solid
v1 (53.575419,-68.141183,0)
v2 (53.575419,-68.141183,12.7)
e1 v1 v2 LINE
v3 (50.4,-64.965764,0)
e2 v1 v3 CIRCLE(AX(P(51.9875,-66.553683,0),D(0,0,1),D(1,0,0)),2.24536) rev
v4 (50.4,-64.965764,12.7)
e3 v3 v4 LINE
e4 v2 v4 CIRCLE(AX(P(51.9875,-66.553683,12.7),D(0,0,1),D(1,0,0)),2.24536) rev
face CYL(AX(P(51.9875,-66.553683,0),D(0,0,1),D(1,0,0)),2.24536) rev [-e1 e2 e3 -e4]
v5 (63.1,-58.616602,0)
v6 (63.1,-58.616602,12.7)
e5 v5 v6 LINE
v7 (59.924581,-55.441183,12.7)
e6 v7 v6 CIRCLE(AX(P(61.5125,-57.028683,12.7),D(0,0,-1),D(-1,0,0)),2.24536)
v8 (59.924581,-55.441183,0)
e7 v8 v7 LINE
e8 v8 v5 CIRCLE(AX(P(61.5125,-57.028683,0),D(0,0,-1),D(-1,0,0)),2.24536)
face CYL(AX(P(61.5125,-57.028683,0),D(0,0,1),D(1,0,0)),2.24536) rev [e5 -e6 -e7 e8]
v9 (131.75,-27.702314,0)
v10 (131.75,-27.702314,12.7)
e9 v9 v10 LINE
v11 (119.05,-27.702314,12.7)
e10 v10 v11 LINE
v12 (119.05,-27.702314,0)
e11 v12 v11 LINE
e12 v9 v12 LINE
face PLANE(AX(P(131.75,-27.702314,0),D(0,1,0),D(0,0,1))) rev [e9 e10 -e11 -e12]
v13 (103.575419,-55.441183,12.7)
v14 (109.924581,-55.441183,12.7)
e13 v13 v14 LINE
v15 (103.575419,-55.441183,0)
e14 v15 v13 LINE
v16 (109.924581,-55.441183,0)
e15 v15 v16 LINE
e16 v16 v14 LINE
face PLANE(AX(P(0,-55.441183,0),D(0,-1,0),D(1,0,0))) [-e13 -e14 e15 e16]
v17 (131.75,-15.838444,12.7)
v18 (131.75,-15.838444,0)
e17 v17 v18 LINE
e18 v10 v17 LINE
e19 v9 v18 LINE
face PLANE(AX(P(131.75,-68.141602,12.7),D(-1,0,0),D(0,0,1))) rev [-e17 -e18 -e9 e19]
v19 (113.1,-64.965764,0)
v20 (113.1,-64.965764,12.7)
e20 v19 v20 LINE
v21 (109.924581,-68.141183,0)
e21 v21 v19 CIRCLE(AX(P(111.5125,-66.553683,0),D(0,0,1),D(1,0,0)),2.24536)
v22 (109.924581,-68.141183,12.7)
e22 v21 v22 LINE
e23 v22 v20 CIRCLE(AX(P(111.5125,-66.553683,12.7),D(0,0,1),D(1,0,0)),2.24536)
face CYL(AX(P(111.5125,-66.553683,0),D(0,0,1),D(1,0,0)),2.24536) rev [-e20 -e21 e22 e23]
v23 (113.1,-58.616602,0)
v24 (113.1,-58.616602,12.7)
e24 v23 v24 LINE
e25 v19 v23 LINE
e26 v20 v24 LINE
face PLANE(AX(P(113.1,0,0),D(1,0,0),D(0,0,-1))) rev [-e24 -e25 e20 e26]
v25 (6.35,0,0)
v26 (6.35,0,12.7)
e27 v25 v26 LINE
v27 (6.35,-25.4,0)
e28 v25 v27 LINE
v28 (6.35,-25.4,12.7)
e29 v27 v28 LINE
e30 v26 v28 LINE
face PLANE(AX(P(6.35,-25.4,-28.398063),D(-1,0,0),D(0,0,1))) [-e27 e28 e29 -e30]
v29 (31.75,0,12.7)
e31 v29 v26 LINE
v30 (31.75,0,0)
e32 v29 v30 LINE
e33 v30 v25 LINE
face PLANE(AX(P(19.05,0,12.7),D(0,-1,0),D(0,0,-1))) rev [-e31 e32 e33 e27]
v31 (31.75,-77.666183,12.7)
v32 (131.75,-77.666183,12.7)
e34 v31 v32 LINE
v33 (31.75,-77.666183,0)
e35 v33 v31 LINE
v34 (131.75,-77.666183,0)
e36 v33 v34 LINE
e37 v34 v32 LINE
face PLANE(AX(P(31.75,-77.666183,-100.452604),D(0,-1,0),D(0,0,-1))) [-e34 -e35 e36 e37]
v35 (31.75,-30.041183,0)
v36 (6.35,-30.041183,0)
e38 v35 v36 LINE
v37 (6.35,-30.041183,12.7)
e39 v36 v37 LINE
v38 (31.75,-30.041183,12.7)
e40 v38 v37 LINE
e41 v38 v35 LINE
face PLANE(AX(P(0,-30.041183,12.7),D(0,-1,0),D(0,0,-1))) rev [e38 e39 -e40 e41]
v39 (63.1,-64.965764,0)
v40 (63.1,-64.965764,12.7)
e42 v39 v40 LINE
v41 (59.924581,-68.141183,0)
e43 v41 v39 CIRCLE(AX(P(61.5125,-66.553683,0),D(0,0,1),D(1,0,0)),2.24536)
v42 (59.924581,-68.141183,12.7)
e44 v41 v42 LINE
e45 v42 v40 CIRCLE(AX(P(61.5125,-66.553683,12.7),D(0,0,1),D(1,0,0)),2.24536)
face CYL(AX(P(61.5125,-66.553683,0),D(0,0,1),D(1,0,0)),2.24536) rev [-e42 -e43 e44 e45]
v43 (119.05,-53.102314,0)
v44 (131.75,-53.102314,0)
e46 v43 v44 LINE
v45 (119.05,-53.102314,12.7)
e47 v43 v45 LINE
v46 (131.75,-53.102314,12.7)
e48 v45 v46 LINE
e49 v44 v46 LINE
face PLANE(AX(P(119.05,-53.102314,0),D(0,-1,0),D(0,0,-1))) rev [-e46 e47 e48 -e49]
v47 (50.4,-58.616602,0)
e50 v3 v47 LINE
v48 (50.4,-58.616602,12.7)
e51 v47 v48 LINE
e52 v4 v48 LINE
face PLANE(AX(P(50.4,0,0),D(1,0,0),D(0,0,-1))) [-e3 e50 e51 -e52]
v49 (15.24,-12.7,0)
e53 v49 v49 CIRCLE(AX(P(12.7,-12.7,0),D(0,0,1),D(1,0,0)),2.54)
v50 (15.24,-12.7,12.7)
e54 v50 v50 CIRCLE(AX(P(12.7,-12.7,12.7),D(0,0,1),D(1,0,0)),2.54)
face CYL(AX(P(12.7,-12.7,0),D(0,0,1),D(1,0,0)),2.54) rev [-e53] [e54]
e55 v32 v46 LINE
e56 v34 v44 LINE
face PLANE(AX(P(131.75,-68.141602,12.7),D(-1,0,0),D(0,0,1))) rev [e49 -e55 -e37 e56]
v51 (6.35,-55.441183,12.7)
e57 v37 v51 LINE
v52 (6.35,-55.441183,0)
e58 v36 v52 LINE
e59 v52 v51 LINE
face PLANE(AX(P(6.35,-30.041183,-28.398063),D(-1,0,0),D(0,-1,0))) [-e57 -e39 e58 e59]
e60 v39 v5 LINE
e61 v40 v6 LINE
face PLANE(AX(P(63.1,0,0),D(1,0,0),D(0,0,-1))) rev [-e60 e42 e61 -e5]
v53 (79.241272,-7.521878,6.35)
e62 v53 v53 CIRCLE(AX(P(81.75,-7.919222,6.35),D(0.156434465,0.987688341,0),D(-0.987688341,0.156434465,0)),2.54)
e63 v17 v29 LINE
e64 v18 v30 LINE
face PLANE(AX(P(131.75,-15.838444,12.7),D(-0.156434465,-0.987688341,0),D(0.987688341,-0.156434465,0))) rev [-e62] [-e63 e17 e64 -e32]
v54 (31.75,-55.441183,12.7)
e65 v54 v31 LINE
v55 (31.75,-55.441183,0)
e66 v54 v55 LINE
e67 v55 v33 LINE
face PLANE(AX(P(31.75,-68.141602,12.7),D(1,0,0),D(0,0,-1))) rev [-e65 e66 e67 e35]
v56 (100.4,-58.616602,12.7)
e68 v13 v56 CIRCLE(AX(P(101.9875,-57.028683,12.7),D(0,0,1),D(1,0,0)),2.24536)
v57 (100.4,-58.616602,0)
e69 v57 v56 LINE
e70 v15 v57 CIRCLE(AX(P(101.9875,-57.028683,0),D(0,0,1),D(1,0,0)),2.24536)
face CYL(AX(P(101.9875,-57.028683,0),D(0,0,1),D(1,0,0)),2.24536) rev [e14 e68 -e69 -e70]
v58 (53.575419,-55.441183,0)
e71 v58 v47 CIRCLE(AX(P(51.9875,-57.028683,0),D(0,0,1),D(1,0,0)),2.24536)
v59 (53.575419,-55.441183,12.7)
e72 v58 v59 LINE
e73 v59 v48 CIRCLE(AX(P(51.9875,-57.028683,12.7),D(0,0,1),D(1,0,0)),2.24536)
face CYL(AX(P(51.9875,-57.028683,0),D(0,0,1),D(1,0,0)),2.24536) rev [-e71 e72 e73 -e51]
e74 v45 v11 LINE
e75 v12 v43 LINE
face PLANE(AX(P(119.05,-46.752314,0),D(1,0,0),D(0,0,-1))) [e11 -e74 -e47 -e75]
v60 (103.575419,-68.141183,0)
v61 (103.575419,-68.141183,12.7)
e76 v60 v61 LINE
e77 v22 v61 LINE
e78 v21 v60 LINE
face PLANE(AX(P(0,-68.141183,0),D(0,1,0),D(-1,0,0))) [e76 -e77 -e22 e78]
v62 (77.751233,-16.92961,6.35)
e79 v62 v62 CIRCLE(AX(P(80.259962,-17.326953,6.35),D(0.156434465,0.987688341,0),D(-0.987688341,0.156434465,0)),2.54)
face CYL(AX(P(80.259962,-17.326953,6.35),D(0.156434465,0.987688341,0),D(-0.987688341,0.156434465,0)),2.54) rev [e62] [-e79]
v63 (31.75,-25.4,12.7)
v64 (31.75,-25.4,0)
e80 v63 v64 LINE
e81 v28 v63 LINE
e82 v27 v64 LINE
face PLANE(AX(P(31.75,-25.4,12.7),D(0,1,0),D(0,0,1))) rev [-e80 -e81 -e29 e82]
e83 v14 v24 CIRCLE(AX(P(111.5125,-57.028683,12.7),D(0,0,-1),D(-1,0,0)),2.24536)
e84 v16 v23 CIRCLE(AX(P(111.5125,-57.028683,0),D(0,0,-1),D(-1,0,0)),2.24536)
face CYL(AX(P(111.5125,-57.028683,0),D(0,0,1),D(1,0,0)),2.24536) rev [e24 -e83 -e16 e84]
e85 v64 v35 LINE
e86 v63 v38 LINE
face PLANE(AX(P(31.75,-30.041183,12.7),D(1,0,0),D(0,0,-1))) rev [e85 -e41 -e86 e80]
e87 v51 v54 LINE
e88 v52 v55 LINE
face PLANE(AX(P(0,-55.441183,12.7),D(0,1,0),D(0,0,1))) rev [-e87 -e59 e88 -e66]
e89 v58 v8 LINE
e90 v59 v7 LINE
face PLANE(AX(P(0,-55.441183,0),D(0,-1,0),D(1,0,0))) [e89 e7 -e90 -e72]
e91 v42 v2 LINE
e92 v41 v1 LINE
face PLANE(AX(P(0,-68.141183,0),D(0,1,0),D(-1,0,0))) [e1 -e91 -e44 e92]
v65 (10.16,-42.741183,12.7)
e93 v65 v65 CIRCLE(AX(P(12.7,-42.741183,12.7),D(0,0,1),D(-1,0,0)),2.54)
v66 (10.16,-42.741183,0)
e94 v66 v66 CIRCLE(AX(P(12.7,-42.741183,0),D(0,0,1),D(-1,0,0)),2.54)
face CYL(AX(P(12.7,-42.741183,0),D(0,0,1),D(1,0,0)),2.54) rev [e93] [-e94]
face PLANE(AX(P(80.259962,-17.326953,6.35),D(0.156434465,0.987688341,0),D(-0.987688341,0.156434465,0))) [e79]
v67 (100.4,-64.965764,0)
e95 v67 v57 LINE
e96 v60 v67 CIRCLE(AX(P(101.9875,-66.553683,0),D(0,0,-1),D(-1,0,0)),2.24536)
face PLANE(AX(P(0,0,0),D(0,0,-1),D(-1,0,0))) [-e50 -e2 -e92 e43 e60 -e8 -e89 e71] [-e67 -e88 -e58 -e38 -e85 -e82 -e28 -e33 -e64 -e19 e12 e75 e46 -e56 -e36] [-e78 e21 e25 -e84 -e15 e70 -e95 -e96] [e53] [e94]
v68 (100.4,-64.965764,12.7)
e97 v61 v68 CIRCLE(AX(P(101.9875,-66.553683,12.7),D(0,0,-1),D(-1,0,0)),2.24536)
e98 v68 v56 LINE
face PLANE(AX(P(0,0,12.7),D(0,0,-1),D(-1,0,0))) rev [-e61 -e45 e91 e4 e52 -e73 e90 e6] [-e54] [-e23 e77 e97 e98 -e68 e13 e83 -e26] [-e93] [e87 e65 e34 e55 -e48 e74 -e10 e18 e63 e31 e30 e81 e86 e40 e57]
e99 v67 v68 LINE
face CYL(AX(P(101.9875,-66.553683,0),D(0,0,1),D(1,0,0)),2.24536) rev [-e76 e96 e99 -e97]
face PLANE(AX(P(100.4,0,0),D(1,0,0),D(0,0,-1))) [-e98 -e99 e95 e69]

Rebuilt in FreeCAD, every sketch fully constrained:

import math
import FreeCAD as App
import Part
import Sketcher
from FreeCAD import Vector
Q = App.Units.Quantity

doc = App.newDocument("Part")
body = doc.addObject("PartDesign::Body", "Body")

# Sketch on XY plane
sketch1 = body.newObject("Sketcher::SketchObject", "Sketch")
sketch1.AttachmentSupport = (doc.getObject("XY_Plane"), [""])
sketch1.MapMode = "FlatFace"
sketch1.addGeometry(Part.LineSegment(Vector(31.8, -55.4, 0), Vector(31.8, -68.1, 0)), False)
sketch1.addGeometry(Part.LineSegment(Vector(31.8, -68.1, 0), Vector(131.8, -68.1, 0)), False)
sketch1.addGeometry(Part.LineSegment(Vector(131.8, -68.1, 0), Vector(131.8, -15.8, 0)), False)
sketch1.addGeometry(Part.LineSegment(Vector(131.8, -15.8, 0), Vector(31.8, 0, 0)), False)
sketch1.addGeometry(Part.LineSegment(Vector(31.8, 0, 0), Vector(0, 0, 0)), False)
sketch1.addGeometry(Part.LineSegment(Vector(0, 0, 0), Vector(0, -25.4, 0)), False)
sketch1.addGeometry(Part.LineSegment(Vector(0, -25.4, 0), Vector(31.8, -25.4, 0)), False)
sketch1.addGeometry(Part.LineSegment(Vector(31.8, -25.4, 0), Vector(31.8, -30, 0)), False)
sketch1.addGeometry(Part.LineSegment(Vector(31.8, -30, 0), Vector(0, -30, 0)), False)
sketch1.addGeometry(Part.LineSegment(Vector(0, -30, 0), Vector(0, -55.4, 0)), False)
sketch1.addGeometry(Part.LineSegment(Vector(0, -55.4, 0), Vector(31.8, -55.4, 0)), False)
sketch1.addConstraint(Sketcher.Constraint("Coincident", 0, 2, 1, 1))
sketch1.addConstraint(Sketcher.Constraint("Coincident", 1, 2, 2, 1))
sketch1.addConstraint(Sketcher.Constraint("Coincident", 2, 2, 3, 1))
sketch1.addConstraint(Sketcher.Constraint("Coincident", 3, 2, 4, 1))
sketch1.addConstraint(Sketcher.Constraint("Coincident", 4, 2, 5, 1))
sketch1.addConstraint(Sketcher.Constraint("Coincident", 5, 2, 6, 1))
sketch1.addConstraint(Sketcher.Constraint("Coincident", 6, 2, 7, 1))
sketch1.addConstraint(Sketcher.Constraint("Coincident", 7, 2, 8, 1))
sketch1.addConstraint(Sketcher.Constraint("Coincident", 8, 2, 9, 1))
sketch1.addConstraint(Sketcher.Constraint("Coincident", 9, 2, 10, 1))
sketch1.addConstraint(Sketcher.Constraint("Coincident", 10, 2, 0, 1))
sketch1.addConstraint(Sketcher.Constraint("Vertical", 0))
sketch1.addConstraint(Sketcher.Constraint("Horizontal", 1))
sketch1.addConstraint(Sketcher.Constraint("Vertical", 2))
sketch1.addConstraint(Sketcher.Constraint("Horizontal", 4))
sketch1.addConstraint(Sketcher.Constraint("Vertical", 5))
sketch1.addConstraint(Sketcher.Constraint("Horizontal", 6))
sketch1.addConstraint(Sketcher.Constraint("Vertical", 7))
sketch1.addConstraint(Sketcher.Constraint("Horizontal", 8))
sketch1.addConstraint(Sketcher.Constraint("Vertical", 9))
sketch1.addConstraint(Sketcher.Constraint("Horizontal", 10))
sketch1.addConstraint(Sketcher.Constraint("Coincident", 4, 2, -1, 1))
sketch1.addConstraint(Sketcher.Constraint("PointOnObject", 8, 2, -2))
sketch1.addConstraint(Sketcher.Constraint("Vertical", 0, 2, 3, 2))
sketch1.addConstraint(Sketcher.Constraint("Vertical", 3, 2, 6, 2))
sketch1.addConstraint(Sketcher.Constraint("Equal", 5, 9))
sketch1.addConstraint(Sketcher.Constraint("DistanceY", 5, 2, 5, 1, Q("1 in")))
sketch1.addConstraint(Sketcher.Constraint("Angle", 3, Q("171 deg")))
sketch1.addConstraint(Sketcher.Constraint("DistanceX", 4, 2, 4, 1, Q("1.25 in")))
sketch1.addConstraint(Sketcher.Constraint("DistanceX", 1, 1, 1, 2, Q("100 mm")))
sketch1.addConstraint(Sketcher.Constraint("DistanceY", 0, 2, 0, 1, Q("12.700419 mm")))
sketch1.addConstraint(Sketcher.Constraint("DistanceY", 0, 2, -1, 1, Q("68.141602 mm")))
pad1 = body.newObject("PartDesign::Pad", "Pad")
pad1.Profile = sketch1
pad1.Length = Q("0.5 in")

# Sketch on XY plane
sketch2 = body.newObject("Sketcher::SketchObject", "Sketch001")
sketch2.AttachmentSupport = (doc.getObject("XY_Plane"), [""])
sketch2.MapMode = "FlatFace"
sketch2.AttachmentOffset = App.Placement(Vector(0, 0, 0.5 * 25.4), App.Rotation())
sketch2.addGeometry(Part.Circle(Vector(25.4, -12.7, 0), Vector(0, 0, 1), 2.5), False)
sketch2.addGeometry(Part.Circle(Vector(25.4, -42.7, 0), Vector(0, 0, 1), 2.5), False)
sketch2.addGeometry(Part.LineSegment(Vector(0, 0, 0), Vector(0, -55.4, 0)), False)
sketch2.addGeometry(Part.LineSegment(Vector(0, -55.4, 0), Vector(19.1, -55.4, 0)), False)
sketch2.addGeometry(Part.LineSegment(Vector(19.1, -55.4, 0), Vector(19.1, 0, 0)), False)
sketch2.addGeometry(Part.LineSegment(Vector(19.1, 0, 0), Vector(0, 0, 0)), False)
sketch2.addConstraint(Sketcher.Constraint("Coincident", 2, 2, 3, 1))
sketch2.addConstraint(Sketcher.Constraint("Coincident", 3, 2, 4, 1))
sketch2.addConstraint(Sketcher.Constraint("Coincident", 4, 2, 5, 1))
sketch2.addConstraint(Sketcher.Constraint("Coincident", 5, 2, 2, 1))
sketch2.addConstraint(Sketcher.Constraint("Vertical", 2))
sketch2.addConstraint(Sketcher.Constraint("Horizontal", 3))
sketch2.addConstraint(Sketcher.Constraint("Vertical", 4))
sketch2.addConstraint(Sketcher.Constraint("Horizontal", 5))
sketch2.addConstraint(Sketcher.Constraint("Coincident", 5, 2, -1, 1))
sketch2.addConstraint(Sketcher.Constraint("Equal", 0, 1))
sketch2.addConstraint(Sketcher.Constraint("Vertical", 0, 3, 1, 3))
sketch2.addConstraint(Sketcher.Constraint("Diameter", 0, Q("0.2 in")))
sketch2.addConstraint(Sketcher.Constraint("DistanceX", -1, 1, 0, 3, Q("1 in")))
sketch2.addConstraint(Sketcher.Constraint("DistanceX", 3, 1, 3, 2, Q("0.75 in")))
sketch2.addConstraint(Sketcher.Constraint("DistanceY", 0, 3, -1, 1, Q("0.5 in")))
sketch2.addConstraint(Sketcher.Constraint("DistanceY", 2, 2, 1, 3, Q("0.5 in")))
sketch2.addConstraint(Sketcher.Constraint("DistanceY", 2, 2, 2, 1, Q("55.441183 mm")))
pocket1 = body.newObject("PartDesign::Pocket", "Pocket")
pocket1.Profile = sketch2
pocket1.Type = "ThroughAll"

# Sketch on XY plane
sketch3 = body.newObject("Sketcher::SketchObject", "Sketch002")
sketch3.AttachmentSupport = (doc.getObject("XY_Plane"), [""])
sketch3.MapMode = "FlatFace"
sketch3.AttachmentOffset = App.Placement(Vector(0, 0, 0.5 * 25.4), App.Rotation())
sketch3.addGeometry(Part.LineSegment(Vector(32, -68, 0), Vector(32, -81, 0)), False)
sketch3.addGeometry(Part.LineSegment(Vector(32, -81, 0), Vector(132, -81, 0)), False)
sketch3.addGeometry(Part.LineSegment(Vector(132, -81, 0), Vector(132, -68, 0)), False)
sketch3.addGeometry(Part.LineSegment(Vector(132, -68, 0), Vector(32, -68, 0)), False)
sketch3.addConstraint(Sketcher.Constraint("Coincident", 0, 2, 1, 1))
sketch3.addConstraint(Sketcher.Constraint("Coincident", 1, 2, 2, 1))
sketch3.addConstraint(Sketcher.Constraint("Coincident", 2, 2, 3, 1))
sketch3.addConstraint(Sketcher.Constraint("Coincident", 3, 2, 0, 1))
sketch3.addConstraint(Sketcher.Constraint("Vertical", 0))
sketch3.addConstraint(Sketcher.Constraint("Horizontal", 1))
sketch3.addConstraint(Sketcher.Constraint("Vertical", 2))
sketch3.addConstraint(Sketcher.Constraint("Horizontal", 3))
sketch3.addConstraint(Sketcher.Constraint("DistanceX", -1, 1, 0, 2, Q("1.25 in")))
sketch3.addConstraint(Sketcher.Constraint("DistanceX", 1, 1, 1, 2, Q("100 mm")))
sketch3.addConstraint(Sketcher.Constraint("DistanceY", 0, 2, 0, 1, Q("12.958546 mm")))
sketch3.addConstraint(Sketcher.Constraint("DistanceY", 0, 2, -1, 1, Q("81.099729 mm")))
pocket2 = body.newObject("PartDesign::Pocket", "Pocket001")
pocket2.Profile = sketch3
pocket2.Type = "ThroughAll"

# Sketch on XY plane
sketch4 = body.newObject("Sketcher::SketchObject", "Sketch003")
sketch4.AttachmentSupport = (doc.getObject("XY_Plane"), [""])
sketch4.MapMode = "FlatFace"
sketch4.AttachmentOffset = App.Placement(Vector(0, 0, 0.5 * 25.4), App.Rotation())
sketch4.addGeometry(Part.LineSegment(Vector(32, -68, 0), Vector(32, -78, 0)), False)
sketch4.addGeometry(Part.LineSegment(Vector(32, -78, 0), Vector(132, -78, 0)), False)
sketch4.addGeometry(Part.LineSegment(Vector(132, -78, 0), Vector(132, -68, 0)), False)
sketch4.addGeometry(Part.LineSegment(Vector(132, -68, 0), Vector(32, -68, 0)), False)
sketch4.addConstraint(Sketcher.Constraint("Coincident", 0, 2, 1, 1))
sketch4.addConstraint(Sketcher.Constraint("Coincident", 1, 2, 2, 1))
sketch4.addConstraint(Sketcher.Constraint("Coincident", 2, 2, 3, 1))
sketch4.addConstraint(Sketcher.Constraint("Coincident", 3, 2, 0, 1))
sketch4.addConstraint(Sketcher.Constraint("Vertical", 0))
sketch4.addConstraint(Sketcher.Constraint("Horizontal", 1))
sketch4.addConstraint(Sketcher.Constraint("Vertical", 2))
sketch4.addConstraint(Sketcher.Constraint("Horizontal", 3))
sketch4.addConstraint(Sketcher.Constraint("DistanceY", 0, 2, 0, 1, Q("0.375 in")))
sketch4.addConstraint(Sketcher.Constraint("DistanceX", -1, 1, 0, 2, Q("1.25 in")))
sketch4.addConstraint(Sketcher.Constraint("DistanceX", 1, 1, 1, 2, Q("100 mm")))
sketch4.addConstraint(Sketcher.Constraint("DistanceY", 0, 2, -1, 1, Q("77.666183 mm")))
pad2 = body.newObject("PartDesign::Pad", "Pad001")
pad2.Profile = sketch4
pad2.Length = Q("0.5 in")
pad2.Reversed = True

# Sketch on XY plane
sketch5 = body.newObject("Sketcher::SketchObject", "Sketch004")
sketch5.AttachmentSupport = (doc.getObject("XY_Plane"), [""])
sketch5.MapMode = "FlatFace"
sketch5.AttachmentOffset = App.Placement(Vector(0, 0, 0.5 * 25.4), App.Rotation())
sketch5.addGeometry(Part.ArcOfCircle(Part.Circle(Vector(52, -57, 0), Vector(0, 0, 1), 2.2), math.radians(45), math.radians(225)), False)
sketch5.addGeometry(Part.LineSegment(Vector(50.4, -58.6, 0), Vector(50.4, -65, 0)), False)
sketch5.addGeometry(Part.ArcOfCircle(Part.Circle(Vector(52, -66.6, 0), Vector(0, 0, 1), 2.2), math.radians(135), math.radians(315)), False)
sketch5.addGeometry(Part.LineSegment(Vector(53.6, -68.1, 0), Vector(59.9, -68.1, 0)), False)
sketch5.addGeometry(Part.ArcOfCircle(Part.Circle(Vector(61.5, -66.6, 0), Vector(0, 0, 1), 2.2), math.radians(-135), math.radians(45)), False)
sketch5.addGeometry(Part.LineSegment(Vector(63.1, -65, 0), Vector(63.1, -58.6, 0)), False)
sketch5.addGeometry(Part.ArcOfCircle(Part.Circle(Vector(61.5, -57, 0), Vector(0, 0, 1), 2.2), math.radians(-45), math.radians(135)), False)
sketch5.addGeometry(Part.LineSegment(Vector(59.9, -55.4, 0), Vector(53.6, -55.4, 0)), False)
sketch5.addGeometry(Part.ArcOfCircle(Part.Circle(Vector(111.5, -57, 0), Vector(0, 0, 1), 2.2), math.radians(-45), math.radians(135)), False)
sketch5.addGeometry(Part.LineSegment(Vector(109.9, -55.4, 0), Vector(103.6, -55.4, 0)), False)
sketch5.addGeometry(Part.ArcOfCircle(Part.Circle(Vector(102, -57, 0), Vector(0, 0, 1), 2.2), math.radians(45), math.radians(225)), False)
sketch5.addGeometry(Part.LineSegment(Vector(100.4, -58.6, 0), Vector(100.4, -65, 0)), False)
sketch5.addGeometry(Part.ArcOfCircle(Part.Circle(Vector(102, -66.6, 0), Vector(0, 0, 1), 2.2), math.radians(135), math.radians(315)), False)
sketch5.addGeometry(Part.LineSegment(Vector(103.6, -68.1, 0), Vector(109.9, -68.1, 0)), False)
sketch5.addGeometry(Part.ArcOfCircle(Part.Circle(Vector(111.5, -66.6, 0), Vector(0, 0, 1), 2.2), math.radians(-135), math.radians(45)), False)
sketch5.addGeometry(Part.LineSegment(Vector(113.1, -65, 0), Vector(113.1, -58.6, 0)), False)
sketch5.addConstraint(Sketcher.Constraint("Coincident", 0, 2, 1, 1))
sketch5.addConstraint(Sketcher.Constraint("Coincident", 1, 2, 2, 1))
sketch5.addConstraint(Sketcher.Constraint("Coincident", 2, 2, 3, 1))
sketch5.addConstraint(Sketcher.Constraint("Coincident", 3, 2, 4, 1))
sketch5.addConstraint(Sketcher.Constraint("Coincident", 4, 2, 5, 1))
sketch5.addConstraint(Sketcher.Constraint("Coincident", 5, 2, 6, 1))
sketch5.addConstraint(Sketcher.Constraint("Coincident", 6, 2, 7, 1))
sketch5.addConstraint(Sketcher.Constraint("Coincident", 7, 2, 0, 1))
sketch5.addConstraint(Sketcher.Constraint("Coincident", 8, 2, 9, 1))
sketch5.addConstraint(Sketcher.Constraint("Coincident", 9, 2, 10, 1))
sketch5.addConstraint(Sketcher.Constraint("Coincident", 10, 2, 11, 1))
sketch5.addConstraint(Sketcher.Constraint("Coincident", 11, 2, 12, 1))
sketch5.addConstraint(Sketcher.Constraint("Coincident", 12, 2, 13, 1))
sketch5.addConstraint(Sketcher.Constraint("Coincident", 13, 2, 14, 1))
sketch5.addConstraint(Sketcher.Constraint("Coincident", 14, 2, 15, 1))
sketch5.addConstraint(Sketcher.Constraint("Coincident", 15, 2, 8, 1))
sketch5.addConstraint(Sketcher.Constraint("Vertical", 1))
sketch5.addConstraint(Sketcher.Constraint("Horizontal", 3))
sketch5.addConstraint(Sketcher.Constraint("Vertical", 5))
sketch5.addConstraint(Sketcher.Constraint("Horizontal", 7))
sketch5.addConstraint(Sketcher.Constraint("Horizontal", 9))
sketch5.addConstraint(Sketcher.Constraint("Vertical", 11))
sketch5.addConstraint(Sketcher.Constraint("Horizontal", 13))
sketch5.addConstraint(Sketcher.Constraint("Vertical", 15))
sketch5.addConstraint(Sketcher.Constraint("Equal", 0, 2))
sketch5.addConstraint(Sketcher.Constraint("Equal", 2, 4))
sketch5.addConstraint(Sketcher.Constraint("Equal", 4, 6))
sketch5.addConstraint(Sketcher.Constraint("Equal", 6, 8))
sketch5.addConstraint(Sketcher.Constraint("Equal", 8, 10))
sketch5.addConstraint(Sketcher.Constraint("Equal", 10, 12))
sketch5.addConstraint(Sketcher.Constraint("Equal", 12, 14))
sketch5.addConstraint(Sketcher.Constraint("Horizontal", 2, 3, 4, 3))
sketch5.addConstraint(Sketcher.Constraint("Horizontal", 0, 3, 6, 3))
sketch5.addConstraint(Sketcher.Constraint("Horizontal", 6, 3, 8, 3))
sketch5.addConstraint(Sketcher.Constraint("Horizontal", 8, 3, 10, 3))
sketch5.addConstraint(Sketcher.Constraint("Horizontal", 4, 3, 12, 3))
sketch5.addConstraint(Sketcher.Constraint("Horizontal", 12, 3, 14, 3))
sketch5.addConstraint(Sketcher.Constraint("Horizontal", 1, 2, 4, 2))
sketch5.addConstraint(Sketcher.Constraint("Horizontal", 0, 2, 5, 2))
sketch5.addConstraint(Sketcher.Constraint("Horizontal", 7, 2, 8, 2))
sketch5.addConstraint(Sketcher.Constraint("Horizontal", 5, 2, 10, 2))
sketch5.addConstraint(Sketcher.Constraint("Horizontal", 4, 2, 11, 2))
sketch5.addConstraint(Sketcher.Constraint("Horizontal", 3, 2, 12, 2))
sketch5.addConstraint(Sketcher.Constraint("Horizontal", 11, 2, 14, 2))
sketch5.addConstraint(Sketcher.Constraint("Horizontal", 10, 2, 15, 2))
sketch5.addConstraint(Sketcher.Constraint("Vertical", 0, 3, 2, 3))
sketch5.addConstraint(Sketcher.Constraint("Vertical", 3, 2, 6, 2))
sketch5.addConstraint(Sketcher.Constraint("Equal", 7, 9))
sketch5.addConstraint(Sketcher.Constraint("Equal", 13, 1))
sketch5.addConstraint(Sketcher.Constraint("Radius", 0, Q("0.0884 in")))
sketch5.addConstraint(Sketcher.Constraint("DistanceY", 2, 3, 0, 3, Q("0.375 in")))
sketch5.addConstraint(Sketcher.Constraint("DistanceX", 2, 3, 4, 3, Q("0.375 in")))
sketch5.addConstraint(Sketcher.Constraint("DistanceX", 0, 2, 0, 3, Q("0.0625 in")))
sketch5.addConstraint(Sketcher.Constraint("DistanceX", -1, 1, 0, 3, Q("51.9875 mm")))
sketch5.addConstraint(Sketcher.Constraint("DistanceX", -1, 1, 8, 3, Q("111.5125 mm")))
sketch5.addConstraint(Sketcher.Constraint("DistanceY", 0, 2, -1, 1, Q("58.616602 mm")))
pocket3 = body.newObject("PartDesign::Pocket", "Pocket002")
pocket3.Profile = sketch5
pocket3.Type = "ThroughAll"

# Sketch on XY plane
sketch6 = body.newObject("Sketcher::SketchObject", "Sketch005")
sketch6.AttachmentSupport = (doc.getObject("XY_Plane"), [""])
sketch6.MapMode = "FlatFace"
sketch6.AttachmentOffset = App.Placement(Vector(0, 0, 0.5 * 25.4), App.Rotation())
sketch6.addGeometry(Part.Circle(Vector(25.4, -12.7, 0), Vector(0, 0, 1), 4.1), False)
sketch6.addGeometry(Part.Circle(Vector(25.4, -42.7, 0), Vector(0, 0, 1), 6.1), False)
sketch6.addGeometry(Part.LineSegment(Vector(6.3, 0, 0), Vector(6.3, -25.4, 0)), False)
sketch6.addGeometry(Part.LineSegment(Vector(6.3, -25.4, 0), Vector(19.1, -25.4, 0)), False)
sketch6.addGeometry(Part.LineSegment(Vector(19.1, -25.4, 0), Vector(19.1, 0, 0)), False)
sketch6.addGeometry(Part.LineSegment(Vector(19.1, 0, 0), Vector(6.3, 0, 0)), False)
sketch6.addGeometry(Part.LineSegment(Vector(6.3, -30, 0), Vector(6.3, -55.4, 0)), False)
sketch6.addGeometry(Part.LineSegment(Vector(6.3, -55.4, 0), Vector(19.1, -55.4, 0)), False)
sketch6.addGeometry(Part.LineSegment(Vector(19.1, -55.4, 0), Vector(19.1, -30, 0)), False)
sketch6.addGeometry(Part.LineSegment(Vector(19.1, -30, 0), Vector(6.3, -30, 0)), False)
sketch6.addConstraint(Sketcher.Constraint("Coincident", 2, 2, 3, 1))
sketch6.addConstraint(Sketcher.Constraint("Coincident", 3, 2, 4, 1))
sketch6.addConstraint(Sketcher.Constraint("Coincident", 4, 2, 5, 1))
sketch6.addConstraint(Sketcher.Constraint("Coincident", 5, 2, 2, 1))
sketch6.addConstraint(Sketcher.Constraint("Coincident", 6, 2, 7, 1))
sketch6.addConstraint(Sketcher.Constraint("Coincident", 7, 2, 8, 1))
sketch6.addConstraint(Sketcher.Constraint("Coincident", 8, 2, 9, 1))
sketch6.addConstraint(Sketcher.Constraint("Coincident", 9, 2, 6, 1))
sketch6.addConstraint(Sketcher.Constraint("Vertical", 2))
sketch6.addConstraint(Sketcher.Constraint("Horizontal", 3))
sketch6.addConstraint(Sketcher.Constraint("Vertical", 4))
sketch6.addConstraint(Sketcher.Constraint("Horizontal", 5))
sketch6.addConstraint(Sketcher.Constraint("Vertical", 6))
sketch6.addConstraint(Sketcher.Constraint("Horizontal", 7))
sketch6.addConstraint(Sketcher.Constraint("Vertical", 8))
sketch6.addConstraint(Sketcher.Constraint("Horizontal", 9))
sketch6.addConstraint(Sketcher.Constraint("PointOnObject", 4, 2, -1))
sketch6.addConstraint(Sketcher.Constraint("Vertical", 0, 3, 1, 3))
sketch6.addConstraint(Sketcher.Constraint("Vertical", 5, 2, 6, 2))
sketch6.addConstraint(Sketcher.Constraint("Vertical", 4, 2, 7, 2))
sketch6.addConstraint(Sketcher.Constraint("Equal", 4, 6))
sketch6.addConstraint(Sketcher.Constraint("DistanceY", 2, 2, 2, 1, Q("1 in")))
sketch6.addConstraint(Sketcher.Constraint("DistanceX", 3, 1, 3, 2, Q("0.5 in")))
sketch6.addConstraint(Sketcher.Constraint("DistanceX", -1, 1, 0, 3, Q("1 in")))
sketch6.addConstraint(Sketcher.Constraint("DistanceY", 0, 3, -1, 1, Q("0.5 in")))
sketch6.addConstraint(Sketcher.Constraint("DistanceY", 6, 2, 1, 3, Q("0.5 in")))
sketch6.addConstraint(Sketcher.Constraint("DistanceX", -1, 1, 2, 2, Q("0.25 in")))
sketch6.addConstraint(Sketcher.Constraint("Diameter", 1, Q("12.10474 mm")))
sketch6.addConstraint(Sketcher.Constraint("Diameter", 0, Q("8.182507 mm")))
sketch6.addConstraint(Sketcher.Constraint("DistanceY", 1, 3, -1, 1, Q("42.741183 mm")))
pad3 = body.newObject("PartDesign::Pad", "Pad002")
pad3.Profile = sketch6
pad3.Length = Q("0.5 in")
pad3.Reversed = True

# Sketch on XY plane
sketch7 = body.newObject("Sketcher::SketchObject", "Sketch006")
sketch7.AttachmentSupport = (doc.getObject("XY_Plane"), [""])
sketch7.MapMode = "FlatFace"
sketch7.AttachmentOffset = App.Placement(Vector(0, 0, 0.5 * 25.4), App.Rotation())
sketch7.addGeometry(Part.Circle(Vector(12.7, -12.7, 0), Vector(0, 0, 1), 2.5), False)
sketch7.addGeometry(Part.Circle(Vector(12.7, -42.7, 0), Vector(0, 0, 1), 2.5), False)
sketch7.addConstraint(Sketcher.Constraint("Equal", 0, 1))
sketch7.addConstraint(Sketcher.Constraint("Vertical", 0, 3, 1, 3))
sketch7.addConstraint(Sketcher.Constraint("Diameter", 0, Q("0.2 in")))
sketch7.addConstraint(Sketcher.Constraint("DistanceX", -1, 1, 0, 3, Q("0.5 in")))
sketch7.addConstraint(Sketcher.Constraint("DistanceY", 0, 3, -1, 1, Q("0.5 in")))
sketch7.addConstraint(Sketcher.Constraint("DistanceY", 1, 3, -1, 1, Q("42.741183 mm")))
pocket4 = body.newObject("PartDesign::Pocket", "Pocket003")
pocket4.Profile = sketch7
pocket4.Type = "ThroughAll"

# Sketch on XY plane
sketch8 = body.newObject("Sketcher::SketchObject", "Sketch007")
sketch8.AttachmentSupport = (doc.getObject("XY_Plane"), [""])
sketch8.MapMode = "FlatFace"
sketch8.AttachmentOffset = App.Placement(Vector(0, 0, 0.5 * 25.4), App.Rotation())
sketch8.addGeometry(Part.LineSegment(Vector(132, -28, 0), Vector(119, -28, 0)), False)
sketch8.addGeometry(Part.LineSegment(Vector(119, -28, 0), Vector(119, -53, 0)), False)
sketch8.addGeometry(Part.LineSegment(Vector(119, -53, 0), Vector(132, -53, 0)), False)
sketch8.addGeometry(Part.LineSegment(Vector(132, -53, 0), Vector(132, -28, 0)), False)
sketch8.addConstraint(Sketcher.Constraint("Coincident", 0, 2, 1, 1))
sketch8.addConstraint(Sketcher.Constraint("Coincident", 1, 2, 2, 1))
sketch8.addConstraint(Sketcher.Constraint("Coincident", 2, 2, 3, 1))
sketch8.addConstraint(Sketcher.Constraint("Coincident", 3, 2, 0, 1))
sketch8.addConstraint(Sketcher.Constraint("Horizontal", 0))
sketch8.addConstraint(Sketcher.Constraint("Vertical", 1))
sketch8.addConstraint(Sketcher.Constraint("Horizontal", 2))
sketch8.addConstraint(Sketcher.Constraint("Vertical", 3))
sketch8.addConstraint(Sketcher.Constraint("DistanceY", 1, 2, 1, 1, Q("1 in")))
sketch8.addConstraint(Sketcher.Constraint("DistanceX", 0, 2, 0, 1, Q("0.5 in")))
sketch8.addConstraint(Sketcher.Constraint("DistanceX", -1, 1, 0, 2, Q("119.05 mm")))
sketch8.addConstraint(Sketcher.Constraint("DistanceY", 0, 2, -1, 1, Q("27.702314 mm")))
pocket5 = body.newObject("PartDesign::Pocket", "Pocket004")
pocket5.Profile = sketch8
pocket5.Type = "ThroughAll"

# Sketch on an angled plane
sketch9 = body.newObject("Sketcher::SketchObject", "Sketch008")
sketch9.Placement = App.Placement(Vector(0.776978, 4.905645, 0), App.Rotation(Vector(0.987688341, -0.156434465, 0), Vector(0, 0, -1.000000001), Vector(0.156434465, 0.987688341, 0), "ZXY"))
sketch9.addGeometry(Part.Circle(Vector(82, -6.4, 0), Vector(0, 0, 1), 2.5), False)
sketch9.addConstraint(Sketcher.Constraint("Diameter", 0, Q("0.2 in")))
sketch9.addConstraint(Sketcher.Constraint("DistanceY", 0, 3, -1, 1, Q("0.25 in")))
sketch9.addConstraint(Sketcher.Constraint("DistanceX", -1, 1, 0, 3, Q("81.982361 mm")))
pocket6 = body.newObject("PartDesign::Pocket", "Pocket005")
pocket6.Profile = sketch9
pocket6.Length = Q("0.375 in")

doc.recompute()
